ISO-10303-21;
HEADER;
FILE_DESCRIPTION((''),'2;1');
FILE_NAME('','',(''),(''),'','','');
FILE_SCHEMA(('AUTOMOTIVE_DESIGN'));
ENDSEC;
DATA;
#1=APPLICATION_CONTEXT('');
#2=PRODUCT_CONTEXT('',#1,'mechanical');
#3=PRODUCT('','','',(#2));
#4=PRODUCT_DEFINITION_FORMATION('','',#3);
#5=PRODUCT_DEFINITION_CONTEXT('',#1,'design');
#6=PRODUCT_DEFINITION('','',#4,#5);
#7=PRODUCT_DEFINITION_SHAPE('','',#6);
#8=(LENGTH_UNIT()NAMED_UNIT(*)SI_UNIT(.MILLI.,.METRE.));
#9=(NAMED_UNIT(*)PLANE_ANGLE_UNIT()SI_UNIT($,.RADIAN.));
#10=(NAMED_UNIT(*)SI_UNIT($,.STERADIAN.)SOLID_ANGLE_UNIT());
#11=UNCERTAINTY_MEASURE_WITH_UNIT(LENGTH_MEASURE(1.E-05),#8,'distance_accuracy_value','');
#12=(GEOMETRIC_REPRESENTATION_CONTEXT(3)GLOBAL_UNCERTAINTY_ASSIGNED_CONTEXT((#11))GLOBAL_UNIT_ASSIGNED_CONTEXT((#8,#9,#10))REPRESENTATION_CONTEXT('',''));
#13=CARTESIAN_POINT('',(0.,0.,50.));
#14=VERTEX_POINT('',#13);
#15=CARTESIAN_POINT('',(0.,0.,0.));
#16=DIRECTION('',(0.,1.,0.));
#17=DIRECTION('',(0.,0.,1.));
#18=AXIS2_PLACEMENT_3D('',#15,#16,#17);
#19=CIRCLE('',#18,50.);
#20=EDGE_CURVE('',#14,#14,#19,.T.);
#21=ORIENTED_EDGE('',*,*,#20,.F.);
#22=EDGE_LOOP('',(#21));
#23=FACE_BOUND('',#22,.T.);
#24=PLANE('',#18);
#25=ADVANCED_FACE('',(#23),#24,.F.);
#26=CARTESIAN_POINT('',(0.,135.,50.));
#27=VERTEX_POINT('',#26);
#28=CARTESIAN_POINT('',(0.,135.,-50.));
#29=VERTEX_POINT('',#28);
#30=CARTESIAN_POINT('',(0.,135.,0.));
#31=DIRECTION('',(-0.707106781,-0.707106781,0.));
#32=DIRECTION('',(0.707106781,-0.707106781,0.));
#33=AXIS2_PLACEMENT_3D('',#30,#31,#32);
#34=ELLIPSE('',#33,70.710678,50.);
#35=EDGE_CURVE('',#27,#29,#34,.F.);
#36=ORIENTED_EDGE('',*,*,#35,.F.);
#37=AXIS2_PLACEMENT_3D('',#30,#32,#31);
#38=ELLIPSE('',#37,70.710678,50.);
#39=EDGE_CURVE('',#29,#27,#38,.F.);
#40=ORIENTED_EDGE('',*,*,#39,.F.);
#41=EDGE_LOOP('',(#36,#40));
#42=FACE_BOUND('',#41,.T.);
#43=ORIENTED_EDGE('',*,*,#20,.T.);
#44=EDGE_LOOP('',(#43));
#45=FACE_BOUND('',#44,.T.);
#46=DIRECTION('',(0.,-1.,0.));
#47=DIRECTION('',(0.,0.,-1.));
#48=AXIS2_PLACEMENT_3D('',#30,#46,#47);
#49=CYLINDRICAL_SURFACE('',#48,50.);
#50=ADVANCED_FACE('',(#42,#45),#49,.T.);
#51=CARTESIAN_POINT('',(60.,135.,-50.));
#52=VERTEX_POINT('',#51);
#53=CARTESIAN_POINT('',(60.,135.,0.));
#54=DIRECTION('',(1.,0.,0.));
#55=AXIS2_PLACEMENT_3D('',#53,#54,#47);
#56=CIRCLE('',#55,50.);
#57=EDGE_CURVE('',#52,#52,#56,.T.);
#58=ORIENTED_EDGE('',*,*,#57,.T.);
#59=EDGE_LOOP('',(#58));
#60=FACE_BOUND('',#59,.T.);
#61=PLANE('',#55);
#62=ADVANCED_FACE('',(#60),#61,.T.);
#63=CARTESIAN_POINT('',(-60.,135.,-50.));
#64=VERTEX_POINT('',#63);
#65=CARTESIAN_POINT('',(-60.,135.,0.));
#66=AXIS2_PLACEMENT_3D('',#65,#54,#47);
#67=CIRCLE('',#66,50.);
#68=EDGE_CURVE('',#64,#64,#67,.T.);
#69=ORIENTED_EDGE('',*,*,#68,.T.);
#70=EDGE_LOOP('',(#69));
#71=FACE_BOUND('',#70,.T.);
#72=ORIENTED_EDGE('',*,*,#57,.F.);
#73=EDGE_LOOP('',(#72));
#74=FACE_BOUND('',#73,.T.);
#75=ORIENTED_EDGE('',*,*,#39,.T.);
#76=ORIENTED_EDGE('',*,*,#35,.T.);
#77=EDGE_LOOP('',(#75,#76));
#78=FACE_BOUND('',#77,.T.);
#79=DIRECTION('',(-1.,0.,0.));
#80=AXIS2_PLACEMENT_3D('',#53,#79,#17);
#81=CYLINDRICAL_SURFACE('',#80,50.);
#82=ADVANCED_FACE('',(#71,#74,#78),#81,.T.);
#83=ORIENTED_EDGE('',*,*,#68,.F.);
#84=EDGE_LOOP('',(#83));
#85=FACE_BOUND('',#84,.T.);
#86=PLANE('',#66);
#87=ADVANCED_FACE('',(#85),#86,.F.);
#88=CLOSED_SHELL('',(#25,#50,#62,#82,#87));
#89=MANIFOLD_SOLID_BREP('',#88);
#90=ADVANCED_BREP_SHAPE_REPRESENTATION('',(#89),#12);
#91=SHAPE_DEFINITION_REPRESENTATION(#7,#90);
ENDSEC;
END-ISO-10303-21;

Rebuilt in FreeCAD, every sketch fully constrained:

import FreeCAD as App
import Part
import Sketcher

doc = App.newDocument("Part")
body = doc.addObject("PartDesign::Body", "Body")

# Sketch on XZ plane
sketch1 = body.newObject("Sketcher::SketchObject", "Sketch")
sketch1.AttachmentSupport = (doc.getObject("XZ_Plane"), [""])
sketch1.MapMode = "FlatFace"
sketch1.addGeometry(Part.Circle(App.Vector(0, 0, 0), App.Vector(0, 0, 1), 50), False)
sketch1.addConstraint(Sketcher.Constraint("Coincident", 0, 3, -1, 1))
sketch1.addConstraint(Sketcher.Constraint("Diameter", 0, 100.0))
pad1 = body.newObject("PartDesign::Pad", "Pad")
pad1.Profile = sketch1
pad1.Length = 135
pad1.Reversed = True

# Sketch on YZ plane
sketch2 = body.newObject("Sketcher::SketchObject", "Sketch001")
sketch2.AttachmentSupport = (doc.getObject("YZ_Plane"), [""])
sketch2.MapMode = "FlatFace"
sketch2.addGeometry(Part.Circle(App.Vector(135, 0, 0), App.Vector(0, 0, 1), 50), False)
sketch2.addConstraint(Sketcher.Constraint("PointOnObject", 0, 3, -1))
sketch2.addConstraint(Sketcher.Constraint("Diameter", 0, 100.0))
sketch2.addConstraint(Sketcher.Constraint("DistanceX", -1, 1, 0, 3, 135.0))
pad2 = body.newObject("PartDesign::Pad", "Pad001")
pad2.Profile = sketch2
pad2.Length = 120
pad2.Midplane = True

doc.recompute()
